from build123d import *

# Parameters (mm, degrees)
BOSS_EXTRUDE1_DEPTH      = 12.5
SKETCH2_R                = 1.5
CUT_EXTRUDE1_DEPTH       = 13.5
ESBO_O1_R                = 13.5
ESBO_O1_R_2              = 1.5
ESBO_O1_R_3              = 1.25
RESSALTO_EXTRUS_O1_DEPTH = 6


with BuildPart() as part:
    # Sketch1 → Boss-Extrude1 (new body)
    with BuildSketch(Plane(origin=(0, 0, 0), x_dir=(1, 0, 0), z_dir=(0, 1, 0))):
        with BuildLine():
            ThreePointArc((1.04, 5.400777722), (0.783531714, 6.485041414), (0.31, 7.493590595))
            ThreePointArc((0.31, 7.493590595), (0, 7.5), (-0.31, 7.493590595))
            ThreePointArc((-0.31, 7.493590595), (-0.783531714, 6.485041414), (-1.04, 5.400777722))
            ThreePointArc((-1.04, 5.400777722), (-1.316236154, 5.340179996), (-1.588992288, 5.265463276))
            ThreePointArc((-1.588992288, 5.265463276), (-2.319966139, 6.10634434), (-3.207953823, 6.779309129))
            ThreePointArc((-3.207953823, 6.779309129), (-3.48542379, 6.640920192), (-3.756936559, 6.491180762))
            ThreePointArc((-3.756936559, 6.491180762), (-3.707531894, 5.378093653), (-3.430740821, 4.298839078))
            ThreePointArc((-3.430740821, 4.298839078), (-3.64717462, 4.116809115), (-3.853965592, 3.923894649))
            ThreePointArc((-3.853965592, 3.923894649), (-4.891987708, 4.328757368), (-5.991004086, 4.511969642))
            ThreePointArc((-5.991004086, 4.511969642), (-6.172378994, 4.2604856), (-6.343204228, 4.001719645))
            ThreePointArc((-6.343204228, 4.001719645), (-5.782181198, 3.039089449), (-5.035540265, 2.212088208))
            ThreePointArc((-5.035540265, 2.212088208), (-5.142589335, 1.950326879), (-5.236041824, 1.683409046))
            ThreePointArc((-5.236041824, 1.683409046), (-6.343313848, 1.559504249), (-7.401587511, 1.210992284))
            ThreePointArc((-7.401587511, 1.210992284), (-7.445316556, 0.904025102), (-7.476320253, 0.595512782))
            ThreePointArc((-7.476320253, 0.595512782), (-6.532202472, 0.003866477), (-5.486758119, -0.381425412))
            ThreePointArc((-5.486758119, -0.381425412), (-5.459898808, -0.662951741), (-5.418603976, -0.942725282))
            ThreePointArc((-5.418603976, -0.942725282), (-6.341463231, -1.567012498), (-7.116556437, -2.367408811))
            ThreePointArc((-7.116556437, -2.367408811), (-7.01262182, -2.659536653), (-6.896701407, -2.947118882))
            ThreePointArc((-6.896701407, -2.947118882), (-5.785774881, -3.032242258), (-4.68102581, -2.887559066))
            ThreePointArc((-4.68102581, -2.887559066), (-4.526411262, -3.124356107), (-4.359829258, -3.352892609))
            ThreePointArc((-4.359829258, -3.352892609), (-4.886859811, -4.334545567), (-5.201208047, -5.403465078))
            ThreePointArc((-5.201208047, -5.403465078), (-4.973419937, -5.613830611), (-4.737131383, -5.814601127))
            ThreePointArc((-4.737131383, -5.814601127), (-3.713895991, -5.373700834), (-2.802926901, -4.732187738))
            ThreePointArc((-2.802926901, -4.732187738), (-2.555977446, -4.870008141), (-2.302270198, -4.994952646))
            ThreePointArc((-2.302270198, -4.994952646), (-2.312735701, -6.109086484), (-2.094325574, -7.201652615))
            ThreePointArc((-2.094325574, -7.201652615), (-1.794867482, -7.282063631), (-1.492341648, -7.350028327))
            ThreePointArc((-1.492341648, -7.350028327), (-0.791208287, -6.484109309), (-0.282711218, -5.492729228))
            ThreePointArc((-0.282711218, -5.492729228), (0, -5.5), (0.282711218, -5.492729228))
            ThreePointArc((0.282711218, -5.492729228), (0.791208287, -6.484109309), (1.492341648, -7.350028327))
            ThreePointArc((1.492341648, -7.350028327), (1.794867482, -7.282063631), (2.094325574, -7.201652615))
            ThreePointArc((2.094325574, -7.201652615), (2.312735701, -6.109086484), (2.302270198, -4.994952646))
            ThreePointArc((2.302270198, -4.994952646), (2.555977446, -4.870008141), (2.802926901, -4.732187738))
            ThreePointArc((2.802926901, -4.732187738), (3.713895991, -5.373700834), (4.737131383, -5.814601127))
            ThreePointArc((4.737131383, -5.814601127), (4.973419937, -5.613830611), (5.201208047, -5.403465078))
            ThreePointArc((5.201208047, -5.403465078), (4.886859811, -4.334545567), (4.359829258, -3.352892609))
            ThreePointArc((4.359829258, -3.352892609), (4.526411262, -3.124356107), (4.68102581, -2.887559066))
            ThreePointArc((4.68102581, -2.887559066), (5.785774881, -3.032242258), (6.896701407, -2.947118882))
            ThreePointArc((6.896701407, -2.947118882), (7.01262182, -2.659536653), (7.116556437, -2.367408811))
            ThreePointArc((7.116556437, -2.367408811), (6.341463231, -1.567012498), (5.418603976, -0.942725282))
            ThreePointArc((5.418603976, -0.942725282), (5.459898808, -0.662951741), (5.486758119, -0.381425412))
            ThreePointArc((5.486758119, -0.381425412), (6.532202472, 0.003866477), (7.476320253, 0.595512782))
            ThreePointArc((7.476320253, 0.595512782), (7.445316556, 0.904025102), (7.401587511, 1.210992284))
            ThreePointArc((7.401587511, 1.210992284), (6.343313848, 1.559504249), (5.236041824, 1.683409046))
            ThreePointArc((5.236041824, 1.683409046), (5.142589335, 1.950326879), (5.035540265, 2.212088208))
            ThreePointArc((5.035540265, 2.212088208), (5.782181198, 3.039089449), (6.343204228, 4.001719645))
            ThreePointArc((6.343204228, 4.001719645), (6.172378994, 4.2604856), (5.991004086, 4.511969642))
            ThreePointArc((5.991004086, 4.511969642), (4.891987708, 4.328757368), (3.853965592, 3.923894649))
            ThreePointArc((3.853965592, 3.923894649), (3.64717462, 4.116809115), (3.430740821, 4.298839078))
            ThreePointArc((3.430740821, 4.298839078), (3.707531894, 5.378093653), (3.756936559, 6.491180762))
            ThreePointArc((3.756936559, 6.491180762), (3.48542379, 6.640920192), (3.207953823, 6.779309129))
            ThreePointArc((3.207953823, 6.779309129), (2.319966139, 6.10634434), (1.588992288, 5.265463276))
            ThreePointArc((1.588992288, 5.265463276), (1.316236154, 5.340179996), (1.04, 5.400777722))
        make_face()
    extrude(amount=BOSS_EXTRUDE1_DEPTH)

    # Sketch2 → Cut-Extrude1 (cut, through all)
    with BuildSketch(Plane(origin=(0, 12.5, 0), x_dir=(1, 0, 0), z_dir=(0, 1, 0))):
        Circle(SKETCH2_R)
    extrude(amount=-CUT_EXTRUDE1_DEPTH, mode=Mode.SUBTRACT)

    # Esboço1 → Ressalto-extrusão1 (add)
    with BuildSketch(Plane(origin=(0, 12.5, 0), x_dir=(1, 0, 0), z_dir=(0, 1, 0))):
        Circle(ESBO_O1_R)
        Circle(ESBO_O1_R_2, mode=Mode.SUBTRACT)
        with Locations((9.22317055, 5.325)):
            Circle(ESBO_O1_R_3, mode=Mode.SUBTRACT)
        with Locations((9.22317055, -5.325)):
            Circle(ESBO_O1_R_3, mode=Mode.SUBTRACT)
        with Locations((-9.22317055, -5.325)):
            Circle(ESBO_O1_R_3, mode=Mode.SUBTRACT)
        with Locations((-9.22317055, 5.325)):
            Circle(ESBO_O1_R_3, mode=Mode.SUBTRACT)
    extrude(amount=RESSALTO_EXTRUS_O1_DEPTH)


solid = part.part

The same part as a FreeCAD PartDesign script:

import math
import FreeCAD as App
import Part
import Sketcher
Q = App.Units.Quantity

doc = App.newDocument("Part")
params = doc.addObject("Spreadsheet::Sheet", "Params")
for row, (alias, value) in enumerate([
    ("sketch1_radius", "5.4 mm"),
    ("sketch1_radius2", "7.5 mm"),
    ("sketch1_radius3", "5.5 mm"),
    ("pad1_length", "12.5 mm"),
    ("sketch2_diameter", "3 mm"),
    ("sketch3_diameter", "27 mm"),
    ("sketch3_diameter2", "3 mm"),
    ("sketch3_diameter3", "2.5 mm"),
    ("pad2_length", "6 mm"),
], start=1):
    params.set(f"A{row}", alias)
    params.set(f"B{row}", "=" + value)
    params.setAlias(f"B{row}", alias)

body = doc.addObject("PartDesign::Body", "Body")

sketch1 = body.newObject("Sketcher::SketchObject", "Sketch")
sketch1.AttachmentSupport = (doc.getObject("XZ_Plane"), [""])
sketch1.MapMode = "FlatFace"
sketch1.addGeometry(Part.ArcOfCircle(Part.Circle(App.Vector(-4.315188, -4.706543, 0), App.Vector(0, 0, 1), 5.4), math.radians(-31.072347), math.radians(-7.386508)), False)
sketch1.addGeometry(Part.ArcOfCircle(Part.Circle(App.Vector(0, 0, 0), App.Vector(0, 0, 1), 7.5), math.radians(-92.3689), math.radians(-87.6311)), False)
sketch1.addGeometry(Part.ArcOfCircle(Part.Circle(App.Vector(4.315188, -4.706543, 0), App.Vector(0, 0, 1), 5.4), math.radians(-172.613492), math.radians(-148.927653)), False)
sketch1.addGeometry(Part.ArcOfCircle(Part.Circle(App.Vector(0, 0, 0), App.Vector(0, 0, 1), 5.5), math.radians(-106.792572), math.radians(-100.899735)), False)
sketch1.addGeometry(Part.ArcOfCircle(Part.Circle(App.Vector(-6.008149, -2.162069, 0), App.Vector(0, 0, 1), 5.4), math.radians(-58.764655), math.radians(-35.078815)), False)
sketch1.addGeometry(Part.ArcOfCircle(Part.Circle(App.Vector(0, 0, 0), App.Vector(0, 0, 1), 7.5), math.radians(-120.061208), math.radians(-115.323407)), False)
sketch1.addGeometry(Part.ArcOfCircle(Part.Circle(App.Vector(1.63367, -6.172804, 0), App.Vector(0, 0, 1), 5.4), math.radians(159.6942), math.radians(183.38004)), False)
sketch1.addGeometry(Part.ArcOfCircle(Part.Circle(App.Vector(0, 0, 0), App.Vector(0, 0, 1), 5.5), math.radians(-134.48488), math.radians(-128.592043)), False)
sketch1.addGeometry(Part.ArcOfCircle(Part.Circle(App.Vector(-6.324715, 0.877709, 0), App.Vector(0, 0, 1), 5.4), math.radians(-86.456963), math.radians(-62.771123)), False)
sketch1.addGeometry(Part.ArcOfCircle(Part.Circle(App.Vector(0.000001, 0, 0), App.Vector(0, 0, 1), 7.500001), math.radians(-147.753516), math.radians(-143.015715)), False)
sketch1.addGeometry(Part.ArcOfCircle(Part.Circle(App.Vector(-1.422102, -6.224951, 0), App.Vector(0, 0, 1), 5.4), math.radians(132.001892), math.radians(155.687732)), False)
sketch1.addGeometry(Part.ArcOfCircle(Part.Circle(App.Vector(0, 0, 0), App.Vector(0, 0, 1), 5.5), math.radians(-162.177188), math.radians(-156.284351)), False)
sketch1.addGeometry(Part.ArcOfCircle(Part.Circle(App.Vector(-5.192365, 3.716414, 0), App.Vector(0, 0, 1), 5.4), math.radians(-114.14927), math.radians(-90.463431)), False)
sketch1.addGeometry(Part.ArcOfCircle(Part.Circle(App.Vector(-0.000001, 0, 0), App.Vector(0, 0, 1), 7.499999), math.radians(-175.445824), math.radians(-170.708022)), False)
sketch1.addGeometry(Part.ArcOfCircle(Part.Circle(App.Vector(-4.152088, -4.851036, 0), App.Vector(0, 0, 1), 5.4), math.radians(104.309585), math.radians(127.995424)), False)
sketch1.addGeometry(Part.ArcOfCircle(Part.Circle(App.Vector(0, 0, 0), App.Vector(0, 0, 1), 5.5), math.radians(170.130505), math.radians(176.023342)), False)
sketch1.addGeometry(Part.ArcOfCircle(Part.Circle(App.Vector(-2.870507, 5.703734, 0), App.Vector(0, 0, 1), 5.4), math.radians(-141.841578), math.radians(-118.155738)), False)
sketch1.addGeometry(Part.ArcOfCircle(Part.Circle(App.Vector(0, 0, 0), App.Vector(0, 0, 1), 7.5), math.radians(156.861869), math.radians(161.59967)), False)
sketch1.addGeometry(Part.ArcOfCircle(Part.Circle(App.Vector(-5.93088, -2.365808, 0), App.Vector(0, 0, 1), 5.4), math.radians(76.617277), math.radians(100.303117)), False)
sketch1.addGeometry(Part.ArcOfCircle(Part.Circle(App.Vector(0, 0, 0), App.Vector(0, 0, 1), 5.5), math.radians(142.438197), math.radians(148.331034)), False)
sketch1.addGeometry(Part.ArcOfCircle(Part.Circle(App.Vector(0.10895, 6.384397, 0), App.Vector(0, 0, 1), 5.4), math.radians(-169.533886), math.radians(-145.848046)), False)
sketch1.addGeometry(Part.ArcOfCircle(Part.Circle(App.Vector(0, 0, 0), App.Vector(0, 0, 1), 7.5), math.radians(129.169561), math.radians(133.907362)), False)
sketch1.addGeometry(Part.ArcOfCircle(Part.Circle(App.Vector(-6.35098, 0.661399, 0), App.Vector(0, 0, 1), 5.4), math.radians(48.924969), math.radians(72.610809)), False)
sketch1.addGeometry(Part.ArcOfCircle(Part.Circle(App.Vector(0, 0, 0), App.Vector(0, 0, 1), 5.5), math.radians(114.745889), math.radians(120.638726)), False)
sketch1.addGeometry(Part.ArcOfCircle(Part.Circle(App.Vector(3.063447, 5.602471, 0), App.Vector(0, 0, 1), 5.4), math.radians(162.773806), math.radians(186.459646)), False)
sketch1.addGeometry(Part.ArcOfCircle(Part.Circle(App.Vector(0, 0, 0), App.Vector(0, 0, 1), 7.5), math.radians(101.477253), math.radians(106.215054)), False)
sketch1.addGeometry(Part.ArcOfCircle(Part.Circle(App.Vector(-5.316146, 3.537087, 0), App.Vector(0, 0, 1), 5.4), math.radians(21.232662), math.radians(44.918501)), False)
sketch1.addGeometry(Part.ArcOfCircle(Part.Circle(App.Vector(0, 0, 0), App.Vector(0, 0, 1), 5.5), math.radians(87.053582), math.radians(92.946418)), False)
sketch1.addGeometry(Part.ArcOfCircle(Part.Circle(App.Vector(5.316146, 3.537087, 0), App.Vector(0, 0, 1), 5.4), math.radians(135.081499), math.radians(158.767338)), False)
sketch1.addGeometry(Part.ArcOfCircle(Part.Circle(App.Vector(0, 0, 0), App.Vector(0, 0, 1), 7.5), math.radians(73.784946), math.radians(78.522747)), False)
sketch1.addGeometry(Part.ArcOfCircle(Part.Circle(App.Vector(-3.063447, 5.602471, 0), App.Vector(0, 0, 1), 5.4), math.radians(-6.459646), math.radians(17.226194)), False)
sketch1.addGeometry(Part.ArcOfCircle(Part.Circle(App.Vector(0, 0, 0), App.Vector(0, 0, 1), 5.5), math.radians(59.361274), math.radians(65.254111)), False)
sketch1.addGeometry(Part.ArcOfCircle(Part.Circle(App.Vector(6.35098, 0.661399, 0), App.Vector(0, 0, 1), 5.4), math.radians(107.389191), math.radians(131.075031)), False)
sketch1.addGeometry(Part.ArcOfCircle(Part.Circle(App.Vector(0, 0, 0), App.Vector(0, 0, 1), 7.5), math.radians(46.092638), math.radians(50.830439)), False)
sketch1.addGeometry(Part.ArcOfCircle(Part.Circle(App.Vector(-0.10895, 6.384397, 0), App.Vector(0, 0, 1), 5.4), math.radians(-34.151954), math.radians(-10.466114)), False)
sketch1.addGeometry(Part.ArcOfCircle(Part.Circle(App.Vector(0, 0, 0), App.Vector(0, 0, 1), 5.5), math.radians(31.668966), math.radians(37.561803)), False)
sketch1.addGeometry(Part.ArcOfCircle(Part.Circle(App.Vector(5.93088, -2.365808, 0), App.Vector(0, 0, 1), 5.4), math.radians(79.696883), math.radians(103.382723)), False)
sketch1.addGeometry(Part.ArcOfCircle(Part.Circle(App.Vector(0, 0, 0), App.Vector(0, 0, 1), 7.5), math.radians(18.40033), math.radians(23.138131)), False)
sketch1.addGeometry(Part.ArcOfCircle(Part.Circle(App.Vector(2.870507, 5.703734, 0), App.Vector(0, 0, 1), 5.4), math.radians(-61.844262), math.radians(-38.158422)), False)
sketch1.addGeometry(Part.ArcOfCircle(Part.Circle(App.Vector(0, 0, 0), App.Vector(0, 0, 1), 5.5), math.radians(3.976658), math.radians(9.869495)), False)
sketch1.addGeometry(Part.ArcOfCircle(Part.Circle(App.Vector(4.152088, -4.851036, 0), App.Vector(0, 0, 1), 5.4), math.radians(52.004576), math.radians(75.690415)), False)
sketch1.addGeometry(Part.ArcOfCircle(Part.Circle(App.Vector(0.000001, 0, 0), App.Vector(0, 0, 1), 7.499999), math.radians(-9.291978), math.radians(-4.554176)), False)
sketch1.addGeometry(Part.ArcOfCircle(Part.Circle(App.Vector(5.192365, 3.716414, 0), App.Vector(0, 0, 1), 5.4), math.radians(-89.536569), math.radians(-65.85073)), False)
sketch1.addGeometry(Part.ArcOfCircle(Part.Circle(App.Vector(0, 0, 0), App.Vector(0, 0, 1), 5.5), math.radians(-23.715649), math.radians(-17.822812)), False)
sketch1.addGeometry(Part.ArcOfCircle(Part.Circle(App.Vector(1.422102, -6.224951, 0), App.Vector(0, 0, 1), 5.4), math.radians(24.312268), math.radians(47.998108)), False)
sketch1.addGeometry(Part.ArcOfCircle(Part.Circle(App.Vector(-0.000001, 0, 0), App.Vector(0, 0, 1), 7.500001), math.radians(-36.984285), math.radians(-32.246484)), False)
sketch1.addGeometry(Part.ArcOfCircle(Part.Circle(App.Vector(6.324715, 0.877709, 0), App.Vector(0, 0, 1), 5.4), math.radians(-117.228877), math.radians(-93.543037)), False)
sketch1.addGeometry(Part.ArcOfCircle(Part.Circle(App.Vector(0, 0, 0), App.Vector(0, 0, 1), 5.5), math.radians(-51.407957), math.radians(-45.51512)), False)
sketch1.addGeometry(Part.ArcOfCircle(Part.Circle(App.Vector(-1.63367, -6.172804, 0), App.Vector(0, 0, 1), 5.4), math.radians(-3.38004), math.radians(20.3058)), False)
sketch1.addGeometry(Part.ArcOfCircle(Part.Circle(App.Vector(0, 0, 0), App.Vector(0, 0, 1), 7.5), math.radians(-64.676593), math.radians(-59.938792)), False)
sketch1.addGeometry(Part.ArcOfCircle(Part.Circle(App.Vector(6.008149, -2.162069, 0), App.Vector(0, 0, 1), 5.4), math.radians(-144.921185), math.radians(-121.235345)), False)
sketch1.addGeometry(Part.ArcOfCircle(Part.Circle(App.Vector(0, 0, 0), App.Vector(0, 0, 1), 5.5), math.radians(-79.100265), math.radians(-73.207428)), False)
sketch1.addConstraint(Sketcher.Constraint("Coincident", 0, 1, 1, 2))
sketch1.addConstraint(Sketcher.Constraint("Coincident", 1, 1, 2, 2))
sketch1.addConstraint(Sketcher.Constraint("Coincident", 2, 1, 3, 2))
sketch1.addConstraint(Sketcher.Constraint("Coincident", 3, 1, 4, 2))
sketch1.addConstraint(Sketcher.Constraint("Coincident", 4, 1, 5, 2))
sketch1.addConstraint(Sketcher.Constraint("Coincident", 5, 1, 6, 2))
sketch1.addConstraint(Sketcher.Constraint("Coincident", 6, 1, 7, 2))
sketch1.addConstraint(Sketcher.Constraint("Coincident", 7, 1, 8, 2))
sketch1.addConstraint(Sketcher.Constraint("Coincident", 8, 1, 9, 2))
sketch1.addConstraint(Sketcher.Constraint("Coincident", 9, 1, 10, 2))
sketch1.addConstraint(Sketcher.Constraint("Coincident", 10, 1, 11, 2))
sketch1.addConstraint(Sketcher.Constraint("Coincident", 11, 1, 12, 2))
sketch1.addConstraint(Sketcher.Constraint("Coincident", 12, 1, 13, 2))
sketch1.addConstraint(Sketcher.Constraint("Coincident", 13, 1, 14, 2))
sketch1.addConstraint(Sketcher.Constraint("Coincident", 14, 1, 15, 2))
sketch1.addConstraint(Sketcher.Constraint("Coincident", 15, 1, 16, 2))
sketch1.addConstraint(Sketcher.Constraint("Coincident", 16, 1, 17, 2))
sketch1.addConstraint(Sketcher.Constraint("Coincident", 17, 1, 18, 2))
sketch1.addConstraint(Sketcher.Constraint("Coincident", 18, 1, 19, 2))
sketch1.addConstraint(Sketcher.Constraint("Coincident", 19, 1, 20, 2))
sketch1.addConstraint(Sketcher.Constraint("Coincident", 20, 1, 21, 2))
sketch1.addConstraint(Sketcher.Constraint("Coincident", 21, 1, 22, 2))
sketch1.addConstraint(Sketcher.Constraint("Coincident", 22, 1, 23, 2))
sketch1.addConstraint(Sketcher.Constraint("Coincident", 23, 1, 24, 2))
sketch1.addConstraint(Sketcher.Constraint("Coincident", 24, 1, 25, 2))
sketch1.addConstraint(Sketcher.Constraint("Coincident", 25, 1, 26, 2))
sketch1.addConstraint(Sketcher.Constraint("Coincident", 26, 1, 27, 2))
sketch1.addConstraint(Sketcher.Constraint("Coincident", 27, 1, 28, 2))
sketch1.addConstraint(Sketcher.Constraint("Coincident", 28, 1, 29, 2))
sketch1.addConstraint(Sketcher.Constraint("Coincident", 29, 1, 30, 2))
sketch1.addConstraint(Sketcher.Constraint("Coincident", 30, 1, 31, 2))
sketch1.addConstraint(Sketcher.Constraint("Coincident", 31, 1, 32, 2))
sketch1.addConstraint(Sketcher.Constraint("Coincident", 32, 1, 33, 2))
sketch1.addConstraint(Sketcher.Constraint("Coincident", 33, 1, 34, 2))
sketch1.addConstraint(Sketcher.Constraint("Coincident", 34, 1, 35, 2))
sketch1.addConstraint(Sketcher.Constraint("Coincident", 35, 1, 36, 2))
sketch1.addConstraint(Sketcher.Constraint("Coincident", 36, 1, 37, 2))
sketch1.addConstraint(Sketcher.Constraint("Coincident", 37, 1, 38, 2))
sketch1.addConstraint(Sketcher.Constraint("Coincident", 38, 1, 39, 2))
sketch1.addConstraint(Sketcher.Constraint("Coincident", 39, 1, 40, 2))
sketch1.addConstraint(Sketcher.Constraint("Coincident", 40, 1, 41, 2))
sketch1.addConstraint(Sketcher.Constraint("Coincident", 41, 1, 42, 2))
sketch1.addConstraint(Sketcher.Constraint("Coincident", 42, 1, 43, 2))
sketch1.addConstraint(Sketcher.Constraint("Coincident", 43, 1, 44, 2))
sketch1.addConstraint(Sketcher.Constraint("Coincident", 44, 1, 45, 2))
sketch1.addConstraint(Sketcher.Constraint("Coincident", 45, 1, 46, 2))
sketch1.addConstraint(Sketcher.Constraint("Coincident", 46, 1, 47, 2))
sketch1.addConstraint(Sketcher.Constraint("Coincident", 47, 1, 48, 2))
sketch1.addConstraint(Sketcher.Constraint("Coincident", 48, 1, 49, 2))
sketch1.addConstraint(Sketcher.Constraint("Coincident", 49, 1, 50, 2))
sketch1.addConstraint(Sketcher.Constraint("Coincident", 50, 1, 51, 2))
sketch1.addConstraint(Sketcher.Constraint("Coincident", 51, 1, 0, 2))
sketch1.addConstraint(Sketcher.Constraint("Coincident", 1, 3, -1, 1))
sketch1.addConstraint(Sketcher.Constraint("Coincident", 3, 3, -1, 1))
sketch1.addConstraint(Sketcher.Constraint("Coincident", 5, 3, -1, 1))
sketch1.addConstraint(Sketcher.Constraint("Coincident", 7, 3, -1, 1))
sketch1.addConstraint(Sketcher.Constraint("Coincident", 9, 3, -1, 1))
sketch1.addConstraint(Sketcher.Constraint("Coincident", 11, 3, -1, 1))
sketch1.addConstraint(Sketcher.Constraint("Coincident", 13, 3, -1, 1))
sketch1.addConstraint(Sketcher.Constraint("Coincident", 15, 3, -1, 1))
sketch1.addConstraint(Sketcher.Constraint("Coincident", 17, 3, -1, 1))
sketch1.addConstraint(Sketcher.Constraint("Coincident", 19, 3, -1, 1))
sketch1.addConstraint(Sketcher.Constraint("Coincident", 21, 3, -1, 1))
sketch1.addConstraint(Sketcher.Constraint("Coincident", 23, 3, -1, 1))
sketch1.addConstraint(Sketcher.Constraint("Coincident", 25, 3, -1, 1))
sketch1.addConstraint(Sketcher.Constraint("Coincident", 27, 3, -1, 1))
sketch1.addConstraint(Sketcher.Constraint("Coincident", 29, 3, -1, 1))
sketch1.addConstraint(Sketcher.Constraint("Coincident", 31, 3, -1, 1))
sketch1.addConstraint(Sketcher.Constraint("Coincident", 33, 3, -1, 1))
sketch1.addConstraint(Sketcher.Constraint("Coincident", 35, 3, -1, 1))
sketch1.addConstraint(Sketcher.Constraint("Coincident", 37, 3, -1, 1))
sketch1.addConstraint(Sketcher.Constraint("Coincident", 39, 3, -1, 1))
sketch1.addConstraint(Sketcher.Constraint("Coincident", 41, 3, -1, 1))
sketch1.addConstraint(Sketcher.Constraint("Coincident", 43, 3, -1, 1))
sketch1.addConstraint(Sketcher.Constraint("Coincident", 45, 3, -1, 1))
sketch1.addConstraint(Sketcher.Constraint("Coincident", 47, 3, -1, 1))
sketch1.addConstraint(Sketcher.Constraint("Coincident", 49, 3, -1, 1))
sketch1.addConstraint(Sketcher.Constraint("Coincident", 51, 3, -1, 1))
sketch1.addConstraint(Sketcher.Constraint("Equal", 0, 2))
sketch1.addConstraint(Sketcher.Constraint("Equal", 2, 4))
sketch1.addConstraint(Sketcher.Constraint("Equal", 1, 5))
sketch1.addConstraint(Sketcher.Constraint("Equal", 4, 6))
sketch1.addConstraint(Sketcher.Constraint("Equal", 3, 7))
sketch1.addConstraint(Sketcher.Constraint("Equal", 6, 8))
sketch1.addConstraint(Sketcher.Constraint("Equal", 5, 9))
sketch1.addConstraint(Sketcher.Constraint("Equal", 8, 10))
sketch1.addConstraint(Sketcher.Constraint("Equal", 7, 11))
sketch1.addConstraint(Sketcher.Constraint("Equal", 10, 12))
sketch1.addConstraint(Sketcher.Constraint("Equal", 9, 13))
sketch1.addConstraint(Sketcher.Constraint("Equal", 12, 14))
sketch1.addConstraint(Sketcher.Constraint("Equal", 11, 15))
sketch1.addConstraint(Sketcher.Constraint("Equal", 14, 16))
sketch1.addConstraint(Sketcher.Constraint("Equal", 13, 17))
sketch1.addConstraint(Sketcher.Constraint("Equal", 16, 18))
sketch1.addConstraint(Sketcher.Constraint("Equal", 15, 19))
sketch1.addConstraint(Sketcher.Constraint("Equal", 18, 20))
sketch1.addConstraint(Sketcher.Constraint("Equal", 17, 21))
sketch1.addConstraint(Sketcher.Constraint("Equal", 20, 22))
sketch1.addConstraint(Sketcher.Constraint("Equal", 19, 23))
sketch1.addConstraint(Sketcher.Constraint("Equal", 22, 24))
sketch1.addConstraint(Sketcher.Constraint("Equal", 21, 25))
sketch1.addConstraint(Sketcher.Constraint("Equal", 24, 26))
sketch1.addConstraint(Sketcher.Constraint("Equal", 23, 27))
sketch1.addConstraint(Sketcher.Constraint("Equal", 26, 28))
sketch1.addConstraint(Sketcher.Constraint("Equal", 25, 29))
sketch1.addConstraint(Sketcher.Constraint("Equal", 28, 30))
sketch1.addConstraint(Sketcher.Constraint("Equal", 27, 31))
sketch1.addConstraint(Sketcher.Constraint("Equal", 30, 32))
sketch1.addConstraint(Sketcher.Constraint("Equal", 29, 33))
sketch1.addConstraint(Sketcher.Constraint("Equal", 32, 34))
sketch1.addConstraint(Sketcher.Constraint("Equal", 31, 35))
sketch1.addConstraint(Sketcher.Constraint("Equal", 34, 36))
sketch1.addConstraint(Sketcher.Constraint("Equal", 33, 37))
sketch1.addConstraint(Sketcher.Constraint("Equal", 36, 38))
sketch1.addConstraint(Sketcher.Constraint("Equal", 35, 39))
sketch1.addConstraint(Sketcher.Constraint("Equal", 38, 40))
sketch1.addConstraint(Sketcher.Constraint("Equal", 37, 41))
sketch1.addConstraint(Sketcher.Constraint("Equal", 40, 42))
sketch1.addConstraint(Sketcher.Constraint("Equal", 39, 43))
sketch1.addConstraint(Sketcher.Constraint("Equal", 42, 44))
sketch1.addConstraint(Sketcher.Constraint("Equal", 41, 45))
sketch1.addConstraint(Sketcher.Constraint("Equal", 44, 46))
sketch1.addConstraint(Sketcher.Constraint("Equal", 43, 47))
sketch1.addConstraint(Sketcher.Constraint("Equal", 46, 48))
sketch1.addConstraint(Sketcher.Constraint("Equal", 45, 49))
sketch1.addConstraint(Sketcher.Constraint("Equal", 48, 50))
sketch1.addConstraint(Sketcher.Constraint("Equal", 47, 51))
sketch1.addConstraint(Sketcher.Constraint("Symmetric", 0, 3, 2, 3, -2))
sketch1.addConstraint(Sketcher.Constraint("Symmetric", 26, 3, 28, 3, -2))
sketch1.addConstraint(Sketcher.Constraint("Symmetric", 24, 3, 30, 3, -2))
sketch1.addConstraint(Sketcher.Constraint("Symmetric", 22, 3, 32, 3, -2))
sketch1.addConstraint(Sketcher.Constraint("Symmetric", 20, 3, 34, 3, -2))
sketch1.addConstraint(Sketcher.Constraint("Symmetric", 18, 3, 36, 3, -2))
sketch1.addConstraint(Sketcher.Constraint("Symmetric", 16, 3, 38, 3, -2))
sketch1.addConstraint(Sketcher.Constraint("Symmetric", 14, 3, 40, 3, -2))
sketch1.addConstraint(Sketcher.Constraint("Symmetric", 12, 3, 42, 3, -2))
sketch1.addConstraint(Sketcher.Constraint("Symmetric", 10, 3, 44, 3, -2))
sketch1.addConstraint(Sketcher.Constraint("Symmetric", 8, 3, 46, 3, -2))
sketch1.addConstraint(Sketcher.Constraint("Symmetric", 6, 3, 48, 3, -2))
sketch1.addConstraint(Sketcher.Constraint("Symmetric", 4, 3, 50, 3, -2))
sketch1.addConstraint(Sketcher.Constraint("Radius", 0, Q("5.4 mm")))
sketch1.addConstraint(Sketcher.Constraint("Radius", 1, Q("7.5 mm")))
sketch1.addConstraint(Sketcher.Constraint("Radius", 3, Q("5.5 mm")))
sketch1.addConstraint(Sketcher.Constraint("DistanceX", -1, 1, 0, 1, Q("0.31 mm")))
sketch1.addConstraint(Sketcher.Constraint("DistanceX", 2, 1, -1, 1, Q("1.04 mm")))
sketch1.addConstraint(Sketcher.Constraint("DistanceY", -1, 1, 22, 3, Q("0.661399 mm")))
sketch1.addConstraint(Sketcher.Constraint("DistanceX", 17, 1, -1, 1, Q("6.896701 mm")))
sketch1.addConstraint(Sketcher.Constraint("DistanceY", -1, 1, 21, 1, Q("5.814601 mm")))
sketch1.addConstraint(Sketcher.Constraint("DistanceX", 4, 3, -1, 1, Q("6.008149 mm")))
sketch1.addConstraint(Sketcher.Constraint("DistanceY", 4, 3, -1, 1, Q("2.162069 mm")))
sketch1.addConstraint(Sketcher.Constraint("DistanceX", -1, 1, 6, 3, Q("1.63367 mm")))
sketch1.addConstraint(Sketcher.Constraint("DistanceY", -1, 1, 8, 3, Q("0.877709 mm")))
sketch1.addConstraint(Sketcher.Constraint("DistanceY", 10, 3, -1, 1, Q("6.224951 mm")))
sketch1.addConstraint(Sketcher.Constraint("DistanceX", 14, 3, -1, 1, Q("4.152088 mm")))
sketch1.addConstraint(Sketcher.Constraint("DistanceX", 18, 3, -1, 1, Q("5.93088 mm")))
sketch1.addConstraint(Sketcher.Constraint("DistanceX", -1, 1, 20, 3, Q("0.10895 mm")))
sketch1.addConstraint(Sketcher.Constraint("DistanceY", -1, 1, 24, 3, Q("5.602471 mm")))
sketch1.addConstraint(Sketcher.Constraint("DistanceY", 5, 1, -1, 1, Q("6.491181 mm")))
sketch1.addConstraint(Sketcher.Constraint("DistanceY", 8, 1, -1, 1, Q("4.51197 mm")))
sketch1.addConstraint(Sketcher.Constraint("DistanceY", 9, 1, -1, 1, Q("4.00172 mm")))
sketch1.addConstraint(Sketcher.Constraint("DistanceX", 11, 1, -1, 1, Q("5.236042 mm")))
sketch1.addConstraint(Sketcher.Constraint("DistanceX", 13, 1, -1, 1, Q("7.47632 mm")))
sketch1.addConstraint(Sketcher.Constraint("DistanceY", -1, 1, 16, 1, Q("2.367409 mm")))
sketch1.addConstraint(Sketcher.Constraint("DistanceX", 19, 1, -1, 1, Q("4.359829 mm")))
sketch1.addConstraint(Sketcher.Constraint("DistanceX", 23, 1, -1, 1, Q("2.30227 mm")))
sketch1.addConstraint(Sketcher.Constraint("DistanceX", 25, 1, -1, 1, Q("1.492342 mm")))
sketch1.addConstraint(Sketcher.Constraint("DistanceX", 26, 1, -1, 1, Q("0.282711 mm")))
sketch1.addConstraint(Sketcher.Constraint("DistanceX", 12, 3, -1, 1, Q("5.192365 mm")))
sketch1.addConstraint(Sketcher.Constraint("DistanceX", 16, 3, -1, 1, Q("2.870507 mm")))
sketch1.setExpression("Constraints[140]", "Params.sketch1_radius")
sketch1.setExpression("Constraints[141]", "Params.sketch1_radius2")
sketch1.setExpression("Constraints[142]", "Params.sketch1_radius3")
pad1 = body.newObject("PartDesign::Pad", "Pad")
pad1.Profile = sketch1
pad1.setExpression("Length", "Params.pad1_length")
pad1.Reversed = True

sketch2 = body.newObject("Sketcher::SketchObject", "Sketch001")
sketch2.AttachmentSupport = (doc.getObject("XZ_Plane"), [""])
sketch2.MapMode = "FlatFace"
sketch2.AttachmentOffset = App.Placement(App.Vector(0, 0, -12.5), App.Rotation())
sketch2.addGeometry(Part.Circle(App.Vector(0, 0, 0), App.Vector(0, 0, 1), 1.5), False)
sketch2.addConstraint(Sketcher.Constraint("Coincident", 0, 3, -1, 1))
sketch2.addConstraint(Sketcher.Constraint("Diameter", 0, Q("3 mm")))
sketch2.setExpression("Constraints[1]", "Params.sketch2_diameter")
pocket1 = body.newObject("PartDesign::Pocket", "Pocket")
pocket1.Profile = sketch2
pocket1.Type = "ThroughAll"
pocket1.Reversed = True

sketch3 = body.newObject("Sketcher::SketchObject", "Sketch002")
sketch3.AttachmentSupport = (doc.getObject("XZ_Plane"), [""])
sketch3.MapMode = "FlatFace"
sketch3.AttachmentOffset = App.Placement(App.Vector(0, 0, -12.5), App.Rotation())
sketch3.addGeometry(Part.Circle(App.Vector(0, 0, 0), App.Vector(0, 0, 1), 13.5), False)
sketch3.addGeometry(Part.Circle(App.Vector(-9.223171, 5.325, 0), App.Vector(0, 0, 1), 1.25), False)
sketch3.addGeometry(Part.Circle(App.Vector(9.223171, 5.325, 0), App.Vector(0, 0, 1), 1.25), False)
sketch3.addGeometry(Part.Circle(App.Vector(0, 0, 0), App.Vector(0, 0, 1), 1.5), False)
sketch3.addGeometry(Part.Circle(App.Vector(-9.223171, -5.325, 0), App.Vector(0, 0, 1), 1.25), False)
sketch3.addGeometry(Part.Circle(App.Vector(9.223171, -5.325, 0), App.Vector(0, 0, 1), 1.25), False)
sketch3.addConstraint(Sketcher.Constraint("Coincident", 0, 3, -1, 1))
sketch3.addConstraint(Sketcher.Constraint("Coincident", 3, 3, -1, 1))
sketch3.addConstraint(Sketcher.Constraint("Equal", 1, 2))
sketch3.addConstraint(Sketcher.Constraint("Equal", 2, 4))
sketch3.addConstraint(Sketcher.Constraint("Equal", 4, 5))
sketch3.addConstraint(Sketcher.Constraint("Symmetric", 2, 3, 4, 3, -1, 1))
sketch3.addConstraint(Sketcher.Constraint("Symmetric", 1, 3, 5, 3, -1, 1))
sketch3.addConstraint(Sketcher.Constraint("Symmetric", 1, 3, 2, 3, -2))
sketch3.addConstraint(Sketcher.Constraint("Diameter", 0, Q("27 mm")))
sketch3.addConstraint(Sketcher.Constraint("Diameter", 3, Q("3 mm")))
sketch3.addConstraint(Sketcher.Constraint("Diameter", 1, Q("2.5 mm")))
sketch3.addConstraint(Sketcher.Constraint("DistanceY", 4, 3, 1, 3, Q("10.65 mm")))
sketch3.addConstraint(Sketcher.Constraint("DistanceX", 1, 3, -1, 1, Q("9.223171 mm")))
sketch3.setExpression("Constraints[8]", "Params.sketch3_diameter")
sketch3.setExpression("Constraints[9]", "Params.sketch3_diameter2")
sketch3.setExpression("Constraints[10]", "Params.sketch3_diameter3")
pad2 = body.newObject("PartDesign::Pad", "Pad001")
pad2.Profile = sketch3
pad2.setExpression("Length", "Params.pad2_length")
pad2.Reversed = True

doc.recompute()
